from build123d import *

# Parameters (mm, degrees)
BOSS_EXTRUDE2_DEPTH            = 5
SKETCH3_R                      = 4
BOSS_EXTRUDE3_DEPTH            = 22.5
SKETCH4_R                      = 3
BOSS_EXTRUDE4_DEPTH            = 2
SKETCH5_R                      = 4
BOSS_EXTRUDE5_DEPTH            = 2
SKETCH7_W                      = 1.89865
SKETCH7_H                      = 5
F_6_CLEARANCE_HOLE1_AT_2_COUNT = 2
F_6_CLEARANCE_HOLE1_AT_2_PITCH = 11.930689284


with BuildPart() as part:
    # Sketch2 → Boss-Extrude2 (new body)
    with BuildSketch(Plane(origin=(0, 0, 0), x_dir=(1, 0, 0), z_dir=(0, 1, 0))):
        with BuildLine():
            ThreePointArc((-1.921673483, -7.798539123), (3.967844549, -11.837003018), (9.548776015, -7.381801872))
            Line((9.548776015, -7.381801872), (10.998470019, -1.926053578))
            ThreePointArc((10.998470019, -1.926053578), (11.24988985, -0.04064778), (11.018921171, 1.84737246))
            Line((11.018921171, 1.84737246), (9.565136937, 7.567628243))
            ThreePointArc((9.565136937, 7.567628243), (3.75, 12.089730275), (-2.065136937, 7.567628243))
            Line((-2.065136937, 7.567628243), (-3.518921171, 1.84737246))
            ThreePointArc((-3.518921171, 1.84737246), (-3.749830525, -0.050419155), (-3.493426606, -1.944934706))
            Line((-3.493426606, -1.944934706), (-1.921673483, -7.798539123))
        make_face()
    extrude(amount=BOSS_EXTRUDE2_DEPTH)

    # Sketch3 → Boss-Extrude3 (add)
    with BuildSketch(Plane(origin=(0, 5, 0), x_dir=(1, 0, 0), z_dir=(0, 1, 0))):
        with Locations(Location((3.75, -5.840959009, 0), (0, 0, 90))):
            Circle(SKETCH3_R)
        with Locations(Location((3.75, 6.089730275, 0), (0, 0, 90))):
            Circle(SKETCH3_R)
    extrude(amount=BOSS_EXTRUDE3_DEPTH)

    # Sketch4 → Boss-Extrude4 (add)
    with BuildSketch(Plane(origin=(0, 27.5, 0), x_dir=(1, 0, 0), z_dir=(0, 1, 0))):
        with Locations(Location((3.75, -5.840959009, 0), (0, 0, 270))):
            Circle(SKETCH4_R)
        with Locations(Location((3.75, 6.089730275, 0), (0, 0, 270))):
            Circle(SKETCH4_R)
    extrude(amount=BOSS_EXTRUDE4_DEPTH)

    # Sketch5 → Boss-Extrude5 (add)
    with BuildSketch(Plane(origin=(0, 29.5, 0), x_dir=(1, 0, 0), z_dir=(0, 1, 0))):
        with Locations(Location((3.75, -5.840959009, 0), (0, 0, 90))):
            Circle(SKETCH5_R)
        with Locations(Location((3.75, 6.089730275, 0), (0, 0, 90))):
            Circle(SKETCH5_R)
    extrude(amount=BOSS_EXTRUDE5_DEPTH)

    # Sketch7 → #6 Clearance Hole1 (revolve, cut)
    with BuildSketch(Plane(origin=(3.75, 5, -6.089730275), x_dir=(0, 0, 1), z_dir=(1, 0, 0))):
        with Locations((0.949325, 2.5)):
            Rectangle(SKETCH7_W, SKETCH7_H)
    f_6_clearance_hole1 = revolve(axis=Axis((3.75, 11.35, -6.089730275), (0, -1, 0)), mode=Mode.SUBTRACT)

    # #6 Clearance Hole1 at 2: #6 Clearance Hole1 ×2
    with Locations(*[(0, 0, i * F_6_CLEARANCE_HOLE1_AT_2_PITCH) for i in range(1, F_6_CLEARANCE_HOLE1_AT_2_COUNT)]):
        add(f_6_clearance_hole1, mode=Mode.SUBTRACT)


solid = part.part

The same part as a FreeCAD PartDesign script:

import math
import FreeCAD as App
import Part
import Sketcher
Q = App.Units.Quantity

doc = App.newDocument("Part")
body = doc.addObject("PartDesign::Body", "Body")

# Sketch on XZ plane
sketch1 = doc.addObject("Sketcher::SketchObject", "Sketch")
body.addObject(sketch1)
sketch1.AttachmentSupport = (doc.XZ_Plane, [""])
sketch1.MapMode = "FlatFace"
sketch1.addGeometry(Part.ArcOfCircle(Part.Circle(App.Vector(3.75, 5.840959, 0), App.Vector(0, 0, 1), 6), math.radians(14.880693), math.radians(160.957868)), False)
sketch1.addGeometry(Part.LineSegment(App.Vector(9.548776, 7.381802, 0), App.Vector(10.99847, 1.926054, 0)), False)
sketch1.addGeometry(Part.ArcOfCircle(Part.Circle(App.Vector(3.75, 0, 0), App.Vector(0, 0, 1), 7.5), math.radians(-14.259638), math.radians(14.880693)), False)
sketch1.addGeometry(Part.LineSegment(App.Vector(11.018921, -1.847372, 0), App.Vector(9.565137, -7.567628, 0)), False)
sketch1.addGeometry(Part.ArcOfCircle(Part.Circle(App.Vector(3.75, -6.08973, 0), App.Vector(0, 0, 1), 6), math.radians(-165.740362), math.radians(-14.259638)), False)
sketch1.addGeometry(Part.LineSegment(App.Vector(-2.065137, -7.567628, 0), App.Vector(-3.518921, -1.847372, 0)), False)
sketch1.addGeometry(Part.ArcOfCircle(Part.Circle(App.Vector(3.75, 0, 0), App.Vector(0, 0, 1), 7.5), math.radians(164.970008), math.radians(194.259638)), False)
sketch1.addGeometry(Part.LineSegment(App.Vector(-3.493427, 1.944935, 0), App.Vector(-1.921673, 7.798539, 0)), False)
sketch1.addConstraint(Sketcher.Constraint("Tangent", 0, 1, 1, 1))
sketch1.addConstraint(Sketcher.Constraint("Tangent", 1, 2, 2, 2))
sketch1.addConstraint(Sketcher.Constraint("Tangent", 2, 1, 3, 1))
sketch1.addConstraint(Sketcher.Constraint("Tangent", 3, 2, 4, 2))
sketch1.addConstraint(Sketcher.Constraint("Tangent", 4, 1, 5, 1))
sketch1.addConstraint(Sketcher.Constraint("Tangent", 5, 2, 6, 2))
sketch1.addConstraint(Sketcher.Constraint("Tangent", 6, 1, 7, 1))
sketch1.addConstraint(Sketcher.Constraint("Coincident", 7, 2, 0, 2))
sketch1.addConstraint(Sketcher.Constraint("Coincident", 6, 3, 2, 3))
sketch1.addConstraint(Sketcher.Constraint("Equal", 0, 4))
sketch1.addConstraint(Sketcher.Constraint("Equal", 2, 6))
sketch1.addConstraint(Sketcher.Constraint("PointOnObject", 2, 3, -1))
sketch1.addConstraint(Sketcher.Constraint("Horizontal", 3, 2, 4, 1))
sketch1.addConstraint(Sketcher.Constraint("Vertical", 0, 3, 2, 3))
sketch1.addConstraint(Sketcher.Constraint("Radius", 0, 6.0))
sketch1.addConstraint(Sketcher.Constraint("Radius", 2, 7.5))
sketch1.addConstraint(Sketcher.Constraint("Angle", 7, Q("74.970008 deg")))
sketch1.addConstraint(Sketcher.Constraint("DistanceX", -1, 1, 0, 3, 3.75))
sketch1.addConstraint(Sketcher.Constraint("DistanceY", -1, 1, 0, 1, 7.381802))
sketch1.addConstraint(Sketcher.Constraint("DistanceY", 4, 3, -1, 1, 6.08973))
pad1 = doc.addObject("PartDesign::Pad", "Pad")
body.addObject(pad1)
pad1.Profile = sketch1
pad1.Length = 5
pad1.Reversed = True

# Sketch on XZ plane
sketch2 = doc.addObject("Sketcher::SketchObject", "Sketch001")
body.addObject(sketch2)
sketch2.AttachmentSupport = (doc.XZ_Plane, [""])
sketch2.MapMode = "FlatFace"
sketch2.AttachmentOffset = App.Placement(App.Vector(0, 0, -5), App.Rotation())
sketch2.addGeometry(Part.Circle(App.Vector(3.75, 5.840959, 0), App.Vector(0, 0, 1), 4), False)
sketch2.addGeometry(Part.Circle(App.Vector(3.75, -6.08973, 0), App.Vector(0, 0, 1), 4), False)
sketch2.addConstraint(Sketcher.Constraint("Equal", 0, 1))
sketch2.addConstraint(Sketcher.Constraint("Vertical", 0, 3, 1, 3))
sketch2.addConstraint(Sketcher.Constraint("Diameter", 0, 8.0))
sketch2.addConstraint(Sketcher.Constraint("DistanceX", -1, 1, 0, 3, 3.75))
sketch2.addConstraint(Sketcher.Constraint("DistanceY", -1, 1, 0, 3, 5.840959))
sketch2.addConstraint(Sketcher.Constraint("DistanceY", 1, 3, -1, 1, 6.08973))
pad2 = doc.addObject("PartDesign::Pad", "Pad001")
body.addObject(pad2)
pad2.Profile = sketch2
pad2.Length = 22.5
pad2.Reversed = True

# Sketch on XZ plane
sketch3 = doc.addObject("Sketcher::SketchObject", "Sketch002")
body.addObject(sketch3)
sketch3.AttachmentSupport = (doc.XZ_Plane, [""])
sketch3.MapMode = "FlatFace"
sketch3.AttachmentOffset = App.Placement(App.Vector(0, 0, -27.5), App.Rotation())
sketch3.addGeometry(Part.Circle(App.Vector(3.75, 5.840959, 0), App.Vector(0, 0, 1), 3), False)
sketch3.addGeometry(Part.Circle(App.Vector(3.75, -6.08973, 0), App.Vector(0, 0, 1), 3), False)
sketch3.addConstraint(Sketcher.Constraint("Equal", 0, 1))
sketch3.addConstraint(Sketcher.Constraint("Vertical", 0, 3, 1, 3))
sketch3.addConstraint(Sketcher.Constraint("Diameter", 0, 6.0))
sketch3.addConstraint(Sketcher.Constraint("DistanceX", -1, 1, 0, 3, 3.75))
sketch3.addConstraint(Sketcher.Constraint("DistanceY", -1, 1, 0, 3, 5.840959))
sketch3.addConstraint(Sketcher.Constraint("DistanceY", 1, 3, -1, 1, 6.08973))
pad3 = doc.addObject("PartDesign::Pad", "Pad002")
body.addObject(pad3)
pad3.Profile = sketch3
pad3.Length = 2
pad3.Reversed = True

# Sketch on XZ plane
sketch4 = doc.addObject("Sketcher::SketchObject", "Sketch003")
body.addObject(sketch4)
sketch4.AttachmentSupport = (doc.XZ_Plane, [""])
sketch4.MapMode = "FlatFace"
sketch4.AttachmentOffset = App.Placement(App.Vector(0, 0, -29.5), App.Rotation())
sketch4.addGeometry(Part.Circle(App.Vector(3.75, 5.840959, 0), App.Vector(0, 0, 1), 4), False)
sketch4.addGeometry(Part.Circle(App.Vector(3.75, -6.08973, 0), App.Vector(0, 0, 1), 4), False)
sketch4.addConstraint(Sketcher.Constraint("Equal", 0, 1))
sketch4.addConstraint(Sketcher.Constraint("Vertical", 0, 3, 1, 3))
sketch4.addConstraint(Sketcher.Constraint("Diameter", 0, 8.0))
sketch4.addConstraint(Sketcher.Constraint("DistanceX", -1, 1, 0, 3, 3.75))
sketch4.addConstraint(Sketcher.Constraint("DistanceY", -1, 1, 0, 3, 5.840959))
sketch4.addConstraint(Sketcher.Constraint("DistanceY", 1, 3, -1, 1, 6.08973))
pad4 = doc.addObject("PartDesign::Pad", "Pad003")
body.addObject(pad4)
pad4.Profile = sketch4
pad4.Length = 2
pad4.Reversed = True

# Sketch on YZ plane
sketch5 = doc.addObject("Sketcher::SketchObject", "Sketch004")
body.addObject(sketch5)
sketch5.AttachmentSupport = (doc.YZ_Plane, [""])
sketch5.MapMode = "FlatFace"
sketch5.AttachmentOffset = App.Placement(App.Vector(0, 0, 3.75), App.Rotation())
sketch5.addGeometry(Part.LineSegment(App.Vector(0, -6.08973, 0), App.Vector(5, -6.08973, 0)), False)
sketch5.addGeometry(Part.LineSegment(App.Vector(5, -6.08973, 0), App.Vector(5, -4.19108, 0)), False)
sketch5.addGeometry(Part.LineSegment(App.Vector(5, -4.19108, 0), App.Vector(0, -4.19108, 0)), False)
sketch5.addGeometry(Part.LineSegment(App.Vector(0, -4.19108, 0), App.Vector(0, -6.08973, 0)), False)
sketch5.addGeometry(Part.LineSegment(App.Vector(5, -6.08973, 0), App.Vector(0, -6.08973, 0)), True)  # axis
sketch5.addConstraint(Sketcher.Constraint("Coincident", 0, 2, 1, 1))
sketch5.addConstraint(Sketcher.Constraint("Coincident", 1, 2, 2, 1))
sketch5.addConstraint(Sketcher.Constraint("Coincident", 2, 2, 3, 1))
sketch5.addConstraint(Sketcher.Constraint("Coincident", 3, 2, 0, 1))
sketch5.addConstraint(Sketcher.Constraint("Horizontal", 0))
sketch5.addConstraint(Sketcher.Constraint("Vertical", 1))
sketch5.addConstraint(Sketcher.Constraint("Horizontal", 2))
sketch5.addConstraint(Sketcher.Constraint("Vertical", 3))
sketch5.addConstraint(Sketcher.Constraint("Horizontal", 4))
sketch5.addConstraint(Sketcher.Constraint("Coincident", 4, 1, 0, 2))
sketch5.addConstraint(Sketcher.Constraint("PointOnObject", 2, 2, -2))
sketch5.addConstraint(Sketcher.Constraint("PointOnObject", 4, 2, -2))
sketch5.addConstraint(Sketcher.Constraint("DistanceX", 0, 1, 0, 2, 5.0))
sketch5.addConstraint(Sketcher.Constraint("DistanceY", 1, 1, 1, 2, 1.89865))
sketch5.addConstraint(Sketcher.Constraint("DistanceY", 0, 2, -1, 1, 6.08973))
groove = doc.addObject("PartDesign::Groove", "Groove")
body.addObject(groove)
groove.Profile = sketch5
groove.ReferenceAxis = (sketch5, ["Axis0"])
groove.Angle = 360
doc.recompute()

linearpattern = doc.addObject("PartDesign::LinearPattern", "LinearPattern")
body.addObject(linearpattern)
linearpattern.Originals = [groove]
linearpattern.Direction = (doc.Z_Axis, [""])
linearpattern.Mode = "offset"
linearpattern.Offset = 11.930689
linearpattern.Occurrences = 2
body.Tip = linearpattern

doc.recompute()
